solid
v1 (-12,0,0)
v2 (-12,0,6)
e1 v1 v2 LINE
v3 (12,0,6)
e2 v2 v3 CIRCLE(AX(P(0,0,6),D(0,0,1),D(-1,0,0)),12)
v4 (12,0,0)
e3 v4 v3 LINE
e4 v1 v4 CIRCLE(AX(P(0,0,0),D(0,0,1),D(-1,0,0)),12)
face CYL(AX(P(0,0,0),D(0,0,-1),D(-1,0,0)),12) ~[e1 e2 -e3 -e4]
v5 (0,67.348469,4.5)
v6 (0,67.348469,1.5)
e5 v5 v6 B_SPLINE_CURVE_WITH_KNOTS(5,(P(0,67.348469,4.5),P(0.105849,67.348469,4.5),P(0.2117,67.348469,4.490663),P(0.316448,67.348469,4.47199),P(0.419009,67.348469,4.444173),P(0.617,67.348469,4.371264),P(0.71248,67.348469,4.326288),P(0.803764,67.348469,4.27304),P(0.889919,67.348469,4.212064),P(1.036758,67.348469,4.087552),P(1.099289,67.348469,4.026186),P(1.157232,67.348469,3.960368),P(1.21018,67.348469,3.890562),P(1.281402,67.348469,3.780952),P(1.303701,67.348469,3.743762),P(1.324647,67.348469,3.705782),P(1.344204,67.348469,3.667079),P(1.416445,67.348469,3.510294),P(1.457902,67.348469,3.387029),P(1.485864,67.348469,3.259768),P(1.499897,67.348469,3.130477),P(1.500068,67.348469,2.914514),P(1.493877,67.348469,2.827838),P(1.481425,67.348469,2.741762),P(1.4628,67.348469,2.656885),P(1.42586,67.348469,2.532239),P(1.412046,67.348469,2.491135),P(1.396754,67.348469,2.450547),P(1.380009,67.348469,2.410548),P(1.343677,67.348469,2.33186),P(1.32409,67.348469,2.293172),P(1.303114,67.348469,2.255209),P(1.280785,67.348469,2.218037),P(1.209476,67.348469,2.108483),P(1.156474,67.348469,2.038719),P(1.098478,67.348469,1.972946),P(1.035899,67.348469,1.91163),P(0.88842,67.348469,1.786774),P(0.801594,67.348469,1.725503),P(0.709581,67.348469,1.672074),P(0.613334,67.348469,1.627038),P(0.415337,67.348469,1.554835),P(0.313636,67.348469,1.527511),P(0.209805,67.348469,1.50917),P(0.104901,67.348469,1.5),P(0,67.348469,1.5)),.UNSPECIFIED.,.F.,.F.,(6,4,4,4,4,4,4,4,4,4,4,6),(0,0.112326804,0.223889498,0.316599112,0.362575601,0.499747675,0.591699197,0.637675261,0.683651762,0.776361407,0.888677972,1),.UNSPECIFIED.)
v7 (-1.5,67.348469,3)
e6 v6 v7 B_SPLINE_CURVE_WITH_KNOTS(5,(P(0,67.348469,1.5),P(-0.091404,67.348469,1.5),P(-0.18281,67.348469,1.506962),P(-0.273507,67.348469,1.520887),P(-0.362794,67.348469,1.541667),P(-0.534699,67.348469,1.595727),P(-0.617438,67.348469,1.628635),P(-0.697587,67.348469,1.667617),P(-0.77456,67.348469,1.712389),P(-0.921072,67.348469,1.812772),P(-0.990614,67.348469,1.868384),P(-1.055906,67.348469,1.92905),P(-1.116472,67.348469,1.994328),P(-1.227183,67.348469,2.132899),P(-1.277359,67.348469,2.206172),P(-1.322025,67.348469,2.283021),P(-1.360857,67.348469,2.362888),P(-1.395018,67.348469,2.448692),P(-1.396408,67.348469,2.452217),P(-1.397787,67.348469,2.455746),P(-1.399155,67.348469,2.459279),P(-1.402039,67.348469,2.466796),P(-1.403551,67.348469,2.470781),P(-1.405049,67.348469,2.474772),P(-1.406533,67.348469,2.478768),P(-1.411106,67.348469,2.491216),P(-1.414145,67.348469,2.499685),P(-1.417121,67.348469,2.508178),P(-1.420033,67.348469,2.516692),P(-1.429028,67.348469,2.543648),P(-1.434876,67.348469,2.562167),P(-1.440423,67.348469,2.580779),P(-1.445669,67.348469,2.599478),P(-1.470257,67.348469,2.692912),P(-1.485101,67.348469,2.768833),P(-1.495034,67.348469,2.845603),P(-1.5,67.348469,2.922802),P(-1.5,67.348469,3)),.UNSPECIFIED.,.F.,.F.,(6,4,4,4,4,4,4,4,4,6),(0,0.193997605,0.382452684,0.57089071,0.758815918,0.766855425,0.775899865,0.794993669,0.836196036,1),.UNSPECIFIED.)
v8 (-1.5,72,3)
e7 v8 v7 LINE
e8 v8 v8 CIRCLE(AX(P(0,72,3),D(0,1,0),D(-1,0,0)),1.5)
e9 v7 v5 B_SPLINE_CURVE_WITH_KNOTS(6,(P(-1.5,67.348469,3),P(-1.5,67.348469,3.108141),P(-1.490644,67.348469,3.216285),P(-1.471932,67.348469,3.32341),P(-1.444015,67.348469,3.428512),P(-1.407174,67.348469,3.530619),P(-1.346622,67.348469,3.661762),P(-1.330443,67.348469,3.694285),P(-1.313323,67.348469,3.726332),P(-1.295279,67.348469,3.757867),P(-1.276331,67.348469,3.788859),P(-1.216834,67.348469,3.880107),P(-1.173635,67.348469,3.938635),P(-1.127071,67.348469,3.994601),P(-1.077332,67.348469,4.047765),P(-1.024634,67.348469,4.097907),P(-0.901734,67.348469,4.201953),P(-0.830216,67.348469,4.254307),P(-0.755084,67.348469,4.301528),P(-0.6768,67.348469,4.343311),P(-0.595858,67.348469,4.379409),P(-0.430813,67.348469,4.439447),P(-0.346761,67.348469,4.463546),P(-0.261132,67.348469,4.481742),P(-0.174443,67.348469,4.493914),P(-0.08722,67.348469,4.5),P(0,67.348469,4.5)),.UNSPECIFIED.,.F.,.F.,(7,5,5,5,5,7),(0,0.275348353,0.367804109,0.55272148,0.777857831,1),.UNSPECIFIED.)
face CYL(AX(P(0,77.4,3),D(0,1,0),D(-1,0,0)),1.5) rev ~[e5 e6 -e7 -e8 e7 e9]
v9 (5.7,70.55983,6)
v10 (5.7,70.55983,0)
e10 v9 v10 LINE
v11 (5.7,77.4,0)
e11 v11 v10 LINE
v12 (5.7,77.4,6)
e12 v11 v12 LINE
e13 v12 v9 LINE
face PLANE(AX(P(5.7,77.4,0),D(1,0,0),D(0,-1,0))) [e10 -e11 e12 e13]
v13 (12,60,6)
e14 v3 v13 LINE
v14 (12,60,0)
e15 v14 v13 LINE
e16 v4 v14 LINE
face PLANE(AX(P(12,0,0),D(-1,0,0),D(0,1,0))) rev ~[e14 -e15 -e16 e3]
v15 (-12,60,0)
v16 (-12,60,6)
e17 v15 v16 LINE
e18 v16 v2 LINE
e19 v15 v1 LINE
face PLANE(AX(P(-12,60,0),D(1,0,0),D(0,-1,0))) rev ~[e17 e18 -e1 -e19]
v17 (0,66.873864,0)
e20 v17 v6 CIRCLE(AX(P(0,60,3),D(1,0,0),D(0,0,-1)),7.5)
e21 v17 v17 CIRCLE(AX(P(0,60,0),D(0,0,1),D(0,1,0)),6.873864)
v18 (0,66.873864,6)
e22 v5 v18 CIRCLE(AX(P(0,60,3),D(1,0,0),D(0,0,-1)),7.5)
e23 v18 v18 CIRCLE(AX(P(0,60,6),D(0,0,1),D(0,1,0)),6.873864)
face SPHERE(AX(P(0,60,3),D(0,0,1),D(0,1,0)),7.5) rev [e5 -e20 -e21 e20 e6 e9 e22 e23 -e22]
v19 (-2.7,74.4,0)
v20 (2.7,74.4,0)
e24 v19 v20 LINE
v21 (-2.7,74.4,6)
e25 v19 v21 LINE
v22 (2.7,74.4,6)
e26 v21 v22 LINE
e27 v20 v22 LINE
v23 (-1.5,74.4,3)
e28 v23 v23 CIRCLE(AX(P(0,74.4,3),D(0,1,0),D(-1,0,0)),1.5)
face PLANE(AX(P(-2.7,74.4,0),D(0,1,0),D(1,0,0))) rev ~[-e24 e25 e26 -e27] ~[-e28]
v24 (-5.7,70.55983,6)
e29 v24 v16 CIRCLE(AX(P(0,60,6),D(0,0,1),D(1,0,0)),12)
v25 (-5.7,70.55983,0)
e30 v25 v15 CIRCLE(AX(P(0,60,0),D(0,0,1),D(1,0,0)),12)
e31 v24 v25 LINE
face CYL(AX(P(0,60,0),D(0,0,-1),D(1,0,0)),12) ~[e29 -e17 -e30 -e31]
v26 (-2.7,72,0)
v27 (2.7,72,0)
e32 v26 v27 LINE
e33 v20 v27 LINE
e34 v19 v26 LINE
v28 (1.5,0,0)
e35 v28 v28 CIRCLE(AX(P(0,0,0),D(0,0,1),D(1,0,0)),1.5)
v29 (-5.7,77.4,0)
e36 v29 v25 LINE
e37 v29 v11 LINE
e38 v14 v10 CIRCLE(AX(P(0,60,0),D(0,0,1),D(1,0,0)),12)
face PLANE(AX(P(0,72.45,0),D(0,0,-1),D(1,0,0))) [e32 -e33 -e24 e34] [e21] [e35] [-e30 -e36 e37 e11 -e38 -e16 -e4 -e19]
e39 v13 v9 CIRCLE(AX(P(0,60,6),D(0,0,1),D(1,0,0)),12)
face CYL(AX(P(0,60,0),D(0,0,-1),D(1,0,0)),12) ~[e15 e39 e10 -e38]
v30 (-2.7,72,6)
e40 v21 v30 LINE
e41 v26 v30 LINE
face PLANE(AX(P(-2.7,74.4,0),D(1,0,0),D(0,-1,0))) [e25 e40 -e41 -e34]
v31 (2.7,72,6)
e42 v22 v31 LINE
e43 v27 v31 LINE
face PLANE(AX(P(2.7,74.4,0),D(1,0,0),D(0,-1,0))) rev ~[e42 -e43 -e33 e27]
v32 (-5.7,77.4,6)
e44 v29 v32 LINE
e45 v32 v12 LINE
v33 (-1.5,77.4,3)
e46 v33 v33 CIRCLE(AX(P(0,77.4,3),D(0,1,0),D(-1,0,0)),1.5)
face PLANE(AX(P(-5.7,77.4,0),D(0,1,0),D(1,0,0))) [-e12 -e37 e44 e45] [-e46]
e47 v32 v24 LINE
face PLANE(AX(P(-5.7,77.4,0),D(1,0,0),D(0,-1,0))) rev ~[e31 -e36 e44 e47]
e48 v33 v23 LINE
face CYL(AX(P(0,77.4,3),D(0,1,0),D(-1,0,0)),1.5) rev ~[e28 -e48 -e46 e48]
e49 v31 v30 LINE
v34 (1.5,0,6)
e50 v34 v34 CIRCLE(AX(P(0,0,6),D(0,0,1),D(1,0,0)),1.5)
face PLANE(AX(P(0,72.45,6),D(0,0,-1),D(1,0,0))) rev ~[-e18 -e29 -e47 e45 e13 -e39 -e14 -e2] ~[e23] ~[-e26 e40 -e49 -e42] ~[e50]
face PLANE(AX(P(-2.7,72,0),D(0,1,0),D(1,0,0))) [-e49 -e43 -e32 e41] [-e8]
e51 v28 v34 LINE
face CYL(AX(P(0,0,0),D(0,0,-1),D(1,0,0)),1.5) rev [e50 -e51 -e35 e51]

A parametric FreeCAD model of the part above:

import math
import FreeCAD as App
import Part
import Sketcher

V = App.Vector


def add_polygon(sketch, points):
    """Adds a closed chain of lines whose ends are joined by coincident constraints."""
    first, n = sketch.GeometryCount, len(points)
    for a, b in zip(points, points[1:] + points[:1]):
        sketch.addGeometry(Part.LineSegment(App.Vector(*a, 0), App.Vector(*b, 0)), False)
    for i in range(n):
        sketch.addConstraint(Sketcher.Constraint("Coincident", first + i, 2, first + (i + 1) % n, 1))

doc = App.newDocument("Part")
body = doc.addObject("PartDesign::Body", "Body")

# Sketch on XY plane
sketch1 = body.newObject("Sketcher::SketchObject", "Sketch")
sketch1.AttachmentSupport = (doc.getObject("XY_Plane"), [""])
sketch1.MapMode = "FlatFace"
sketch1.addGeometry([
    Part.LineSegment(V(-12, 60, 0), V(-12, 0, 0)),  # 0
    Part.ArcOfCircle(Part.Circle(V(0, 0, 0), V(0, 0, 1), 12), math.radians(180), math.radians(360)),  # 1
    Part.LineSegment(V(12, 0, 0), V(12, 60, 0)),  # 2
    Part.ArcOfCircle(Part.Circle(V(0, 60, 0), V(0, 0, 1), 12), math.radians(0), math.radians(180)),  # 3
    Part.Circle(V(0, 0, 0), V(0, 0, 1), 1.5),  # 4
], False)
sketch1.addConstraint([
    Sketcher.Constraint("Tangent", 0, 2, 1, 1),
    Sketcher.Constraint("Tangent", 1, 2, 2, 1),
    Sketcher.Constraint("Tangent", 2, 2, 3, 1),
    Sketcher.Constraint("Tangent", 3, 2, 0, 1),
    Sketcher.Constraint("Vertical", 0),
    Sketcher.Constraint("Vertical", 2),
    Sketcher.Constraint("Coincident", 1, 3, -1, 1),
    Sketcher.Constraint("Coincident", 4, 3, -1, 1),
    Sketcher.Constraint("Diameter", 4, 3.0),
    Sketcher.Constraint("Radius", 1, 12.0),
    Sketcher.Constraint("DistanceY", 0, 2, 0, 1, 60.0),
])
pad1 = body.newObject("PartDesign::Pad", "Pad")
pad1.Profile = sketch1
pad1.Length = 6

# Sketch on XY plane
sketch2 = body.newObject("Sketcher::SketchObject", "Sketch001")
sketch2.AttachmentSupport = (doc.getObject("XY_Plane"), [""])
sketch2.MapMode = "FlatFace"
add_polygon(sketch2, [(-5.7, 67.5), (-5.7, 77.4), (5.7, 77.4), (5.7, 67.5)])  # lines 0-3
add_polygon(sketch2, [(2.7, 74.4), (-2.7, 74.4), (-2.7, 72), (2.7, 72)])  # lines 4-7
sketch2.addConstraint([
    Sketcher.Constraint("Vertical", 0),
    Sketcher.Constraint("Horizontal", 1),
    Sketcher.Constraint("Vertical", 2),
    Sketcher.Constraint("Horizontal", 3),
    Sketcher.Constraint("Horizontal", 4),
    Sketcher.Constraint("Vertical", 5),
    Sketcher.Constraint("Horizontal", 6),
    Sketcher.Constraint("Vertical", 7),
    Sketcher.Constraint("DistanceX", 1, 1, 1, 2, 11.4),
    Sketcher.Constraint("DistanceX", 4, 2, 4, 1, 5.4),
    Sketcher.Constraint("DistanceY", 0, 1, 0, 2, 9.9),
    Sketcher.Constraint("DistanceY", 5, 2, 5, 1, 2.4),
    Sketcher.Constraint("DistanceY", -1, 1, 5, 2, 72.0),
    Sketcher.Constraint("DistanceX", 0, 2, 4, 2, 3.0),
    Sketcher.Constraint("DistanceY", 4, 2, 0, 2, 3.0),
    Sketcher.Constraint("DistanceX", 0, 2, -1, 1, 5.7),
])
pad2 = body.newObject("PartDesign::Pad", "Pad001")
pad2.Profile = sketch2
pad2.Length = 6

# Sketch on YZ plane
sketch3 = body.newObject("Sketcher::SketchObject", "Sketch002")
sketch3.AttachmentSupport = (doc.getObject("YZ_Plane"), [""])
sketch3.MapMode = "FlatFace"
sketch3.addGeometry([
    Part.ArcOfCircle(Part.Circle(V(60, 3, 0), V(0, 0, 1), 7.5), math.radians(-90), math.radians(90)),
    Part.LineSegment(V(60, 10.5, 0), V(60, -4.5, 0)),
], False)
sketch3.addGeometry(Part.LineSegment(V(60, 10.5, 0), V(60, -4.5, 0)), True)  # axis
sketch3.addConstraint([
    Sketcher.Constraint("Coincident", 0, 1, 1, 2),
    Sketcher.Constraint("Coincident", 1, 1, 0, 2),
    Sketcher.Constraint("Vertical", 1),
    Sketcher.Constraint("Vertical", 2),
    Sketcher.Constraint("Coincident", 2, 1, 1, 1),
    Sketcher.Constraint("Equal", 1, 2),
    Sketcher.Constraint("Radius", 0, 7.5),
    Sketcher.Constraint("DistanceX", -1, 1, 0, 3, 60.0),
    Sketcher.Constraint("DistanceY", -1, 1, 0, 3, 3.0),
    Sketcher.Constraint("DistanceX", -1, 1, 0, 1, 60.0),
])
groove = body.newObject("PartDesign::Groove", "Groove")
groove.Profile = sketch3
groove.ReferenceAxis = (sketch3, ["Axis0"])
groove.Angle = 360

# Sketch on XZ plane
sketch4 = body.newObject("Sketcher::SketchObject", "Sketch003")
sketch4.AttachmentSupport = (doc.getObject("XZ_Plane"), [""])
sketch4.MapMode = "FlatFace"
sketch4.AttachmentOffset = App.Placement(V(0, 0, -77.4), App.Rotation())
sketch4.addGeometry(Part.Circle(V(0, 3, 0), V(0, 0, 1), 1.5), False)
sketch4.addConstraint([
    Sketcher.Constraint("PointOnObject", 0, 3, -2),
    Sketcher.Constraint("Diameter", 0, 3.0),
    Sketcher.Constraint("DistanceY", -1, 1, 0, 3, 3.0),
])
pocket1 = body.newObject("PartDesign::Pocket", "Pocket")
pocket1.Profile = sketch4
pocket1.Length = 11.051531
pocket1.Reversed = True

doc.recompute()
